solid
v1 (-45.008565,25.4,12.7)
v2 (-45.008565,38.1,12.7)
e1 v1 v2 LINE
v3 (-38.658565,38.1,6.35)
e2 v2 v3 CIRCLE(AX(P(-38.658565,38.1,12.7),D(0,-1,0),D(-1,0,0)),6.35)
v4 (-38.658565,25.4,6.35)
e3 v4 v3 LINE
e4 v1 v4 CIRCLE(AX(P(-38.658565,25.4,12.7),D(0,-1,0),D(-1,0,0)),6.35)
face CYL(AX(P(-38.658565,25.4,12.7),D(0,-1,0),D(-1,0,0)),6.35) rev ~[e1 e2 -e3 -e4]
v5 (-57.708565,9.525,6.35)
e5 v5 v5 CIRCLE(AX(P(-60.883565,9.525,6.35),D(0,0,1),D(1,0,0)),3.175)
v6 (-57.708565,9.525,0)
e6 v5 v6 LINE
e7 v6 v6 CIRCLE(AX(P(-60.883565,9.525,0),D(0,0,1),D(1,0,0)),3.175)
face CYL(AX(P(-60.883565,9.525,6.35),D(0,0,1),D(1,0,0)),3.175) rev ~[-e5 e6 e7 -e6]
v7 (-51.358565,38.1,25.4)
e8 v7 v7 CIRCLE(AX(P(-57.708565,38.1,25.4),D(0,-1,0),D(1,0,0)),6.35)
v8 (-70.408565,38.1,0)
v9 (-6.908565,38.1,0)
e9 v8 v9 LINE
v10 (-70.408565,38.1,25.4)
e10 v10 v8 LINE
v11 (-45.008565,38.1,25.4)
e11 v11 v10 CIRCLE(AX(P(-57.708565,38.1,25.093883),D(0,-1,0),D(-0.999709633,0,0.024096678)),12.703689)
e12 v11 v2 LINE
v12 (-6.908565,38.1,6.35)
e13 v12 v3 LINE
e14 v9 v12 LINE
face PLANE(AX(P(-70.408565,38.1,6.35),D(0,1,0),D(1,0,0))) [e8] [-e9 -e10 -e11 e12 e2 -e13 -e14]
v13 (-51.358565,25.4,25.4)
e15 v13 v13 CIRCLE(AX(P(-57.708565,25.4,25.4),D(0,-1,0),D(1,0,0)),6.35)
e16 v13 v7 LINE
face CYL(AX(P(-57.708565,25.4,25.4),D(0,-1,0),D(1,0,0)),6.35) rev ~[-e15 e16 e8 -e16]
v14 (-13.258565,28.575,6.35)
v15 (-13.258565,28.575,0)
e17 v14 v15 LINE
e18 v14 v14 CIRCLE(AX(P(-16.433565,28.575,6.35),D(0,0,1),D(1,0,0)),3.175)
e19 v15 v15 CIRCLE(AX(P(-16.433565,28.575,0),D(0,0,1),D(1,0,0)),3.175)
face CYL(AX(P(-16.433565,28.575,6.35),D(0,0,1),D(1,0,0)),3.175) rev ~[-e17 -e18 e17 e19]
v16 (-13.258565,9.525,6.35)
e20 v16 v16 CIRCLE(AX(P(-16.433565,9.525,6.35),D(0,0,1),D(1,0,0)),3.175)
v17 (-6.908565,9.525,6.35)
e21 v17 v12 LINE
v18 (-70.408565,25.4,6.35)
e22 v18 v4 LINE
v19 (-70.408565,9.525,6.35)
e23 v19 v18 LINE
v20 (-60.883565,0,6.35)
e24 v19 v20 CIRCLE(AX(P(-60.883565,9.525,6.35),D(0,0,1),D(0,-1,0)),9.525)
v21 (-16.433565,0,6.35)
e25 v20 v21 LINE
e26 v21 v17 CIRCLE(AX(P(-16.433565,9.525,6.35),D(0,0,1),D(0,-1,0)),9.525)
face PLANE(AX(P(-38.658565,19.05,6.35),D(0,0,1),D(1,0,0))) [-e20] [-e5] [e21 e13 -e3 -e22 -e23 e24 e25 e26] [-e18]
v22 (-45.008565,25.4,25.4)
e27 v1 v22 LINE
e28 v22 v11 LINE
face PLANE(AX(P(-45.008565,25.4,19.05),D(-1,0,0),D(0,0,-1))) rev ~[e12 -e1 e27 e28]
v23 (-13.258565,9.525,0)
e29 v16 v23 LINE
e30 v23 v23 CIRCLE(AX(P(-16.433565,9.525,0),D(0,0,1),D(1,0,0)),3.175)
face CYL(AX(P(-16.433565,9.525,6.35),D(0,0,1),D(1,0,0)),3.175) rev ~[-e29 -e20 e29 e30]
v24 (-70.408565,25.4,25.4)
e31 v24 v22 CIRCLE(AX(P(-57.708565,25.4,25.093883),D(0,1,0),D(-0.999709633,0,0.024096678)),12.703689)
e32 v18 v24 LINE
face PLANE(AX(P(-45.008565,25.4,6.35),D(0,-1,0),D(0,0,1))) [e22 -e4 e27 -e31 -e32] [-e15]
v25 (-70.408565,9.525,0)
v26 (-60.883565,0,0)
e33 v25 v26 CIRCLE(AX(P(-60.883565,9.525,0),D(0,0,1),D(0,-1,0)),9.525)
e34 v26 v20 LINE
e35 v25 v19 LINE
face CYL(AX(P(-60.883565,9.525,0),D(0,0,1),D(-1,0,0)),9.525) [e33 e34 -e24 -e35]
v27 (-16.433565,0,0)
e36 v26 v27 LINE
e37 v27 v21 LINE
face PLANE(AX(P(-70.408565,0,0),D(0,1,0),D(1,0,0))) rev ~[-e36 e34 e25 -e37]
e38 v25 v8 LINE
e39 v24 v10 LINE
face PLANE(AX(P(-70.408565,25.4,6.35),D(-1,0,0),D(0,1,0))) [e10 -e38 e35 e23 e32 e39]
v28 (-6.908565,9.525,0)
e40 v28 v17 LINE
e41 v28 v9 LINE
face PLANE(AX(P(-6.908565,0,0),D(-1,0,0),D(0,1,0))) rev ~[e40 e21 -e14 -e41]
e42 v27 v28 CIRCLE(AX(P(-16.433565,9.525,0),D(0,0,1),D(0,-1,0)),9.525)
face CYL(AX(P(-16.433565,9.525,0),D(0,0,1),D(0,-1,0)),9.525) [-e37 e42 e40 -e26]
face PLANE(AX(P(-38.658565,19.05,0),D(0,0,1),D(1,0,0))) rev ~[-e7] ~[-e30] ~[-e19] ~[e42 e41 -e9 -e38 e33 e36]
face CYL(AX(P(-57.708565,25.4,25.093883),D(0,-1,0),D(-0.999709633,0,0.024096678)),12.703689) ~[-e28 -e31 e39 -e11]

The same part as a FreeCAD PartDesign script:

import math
import FreeCAD as App
import Part
import Sketcher

V = App.Vector
Q = App.Units.Quantity


def edges_at(feature, points):
    """Names of the edges that pass closest to the given points."""
    edges = feature.Shape.Edges
    near = lambda p: min(range(len(edges)), key=lambda i: edges[i].distToShape(Part.Vertex(*p))[0])
    return sorted({f"Edge{near(p) + 1}" for p in points})

doc = App.newDocument("Part")
params = doc.addObject("Spreadsheet::Sheet", "Params")
for row, (alias, value) in enumerate([
    ("sketch1_width", "2.5 in"),
    ("sketch1_height", "1.5 in"),
    ("pad1_length", "0.25 in"),
    ("sketch2_diameter", "0.25 in"),
    ("pocket1_length", "1 in"),
    ("sketch3_width", "1 in"),
    ("sketch3_height", "0.5 in"),
    ("pad2_length", "1.25 in"),
    ("sketch4_diameter", "0.5 in"),
    ("sketch4_width", "1 in"),
    ("sketch4_height", "0.5 in"),
    ("pocket2_length", "1 in"),
    ("fillet_radius", "0.375 in"),
    ("sketch5_width", "0.5 in"),
    ("pad3_length", "0.5 in"),
    ("sketch6_radius", "0.25 in"),
    ("sketch6_width", "0.5 in"),
    ("pocket3_length", "1 in"),
], start=1):
    params.set(f"A{row}", alias)
    params.set(f"B{row}", "=" + value)
    params.setAlias(f"B{row}", alias)

body = doc.addObject("PartDesign::Body", "Body")

# Sketch on XY plane
sketch1 = body.newObject("Sketcher::SketchObject", "Sketch")
sketch1.AttachmentSupport = (doc.getObject("XY_Plane"), [""])
sketch1.MapMode = "FlatFace"
sketch1.addGeometry(Part.LineSegment(V(-70, 38, 0), V(-70, 0, 0)), False)
sketch1.addGeometry(Part.LineSegment(V(-70, 0, 0), V(-7, 0, 0)), False)
sketch1.addGeometry(Part.LineSegment(V(-7, 0, 0), V(-7, 38, 0)), False)
sketch1.addGeometry(Part.LineSegment(V(-7, 38, 0), V(-70, 38, 0)), False)
sketch1.addConstraint(Sketcher.Constraint("Coincident", 0, 2, 1, 1))
sketch1.addConstraint(Sketcher.Constraint("Coincident", 1, 2, 2, 1))
sketch1.addConstraint(Sketcher.Constraint("Coincident", 2, 2, 3, 1))
sketch1.addConstraint(Sketcher.Constraint("Coincident", 3, 2, 0, 1))
sketch1.addConstraint(Sketcher.Constraint("Vertical", 0))
sketch1.addConstraint(Sketcher.Constraint("Horizontal", 1))
sketch1.addConstraint(Sketcher.Constraint("Vertical", 2))
sketch1.addConstraint(Sketcher.Constraint("Horizontal", 3))
sketch1.addConstraint(Sketcher.Constraint("PointOnObject", 0, 2, -1))
sketch1.addConstraint(Sketcher.Constraint("DistanceX", 1, 1, 1, 2, Q("2.5 in")))
sketch1.addConstraint(Sketcher.Constraint("DistanceY", 0, 2, 0, 1, Q("1.5 in")))
sketch1.addConstraint(Sketcher.Constraint("DistanceX", 0, 2, -1, 1, Q("70.408565 mm")))
sketch1.setExpression("Constraints[9]", "Params.sketch1_width")
sketch1.setExpression("Constraints[10]", "Params.sketch1_height")
pad1 = body.newObject("PartDesign::Pad", "Pad")
pad1.Profile = sketch1
pad1.setExpression("Length", "Params.pad1_length")

# Sketch on XY plane
sketch2 = body.newObject("Sketcher::SketchObject", "Sketch001")
sketch2.AttachmentSupport = (doc.getObject("XY_Plane"), [""])
sketch2.MapMode = "FlatFace"
sketch2.AttachmentOffset = App.Placement(V(0, 0, 0.25 * 25.4), App.Rotation())
sketch2.addGeometry(Part.Circle(V(-16.4, 28.6, 0), V(0, 0, 1), 3.2), False)
sketch2.addGeometry(Part.Circle(V(-16.4, 9.5, 0), V(0, 0, 1), 3.2), False)
sketch2.addGeometry(Part.Circle(V(-60.9, 9.5, 0), V(0, 0, 1), 3.2), False)
sketch2.addConstraint(Sketcher.Constraint("Equal", 0, 1))
sketch2.addConstraint(Sketcher.Constraint("Equal", 1, 2))
sketch2.addConstraint(Sketcher.Constraint("Horizontal", 1, 3, 2, 3))
sketch2.addConstraint(Sketcher.Constraint("Vertical", 0, 3, 1, 3))
sketch2.addConstraint(Sketcher.Constraint("Diameter", 0, Q("0.25 in")))
sketch2.addConstraint(Sketcher.Constraint("DistanceY", 1, 3, 0, 3, Q("0.75 in")))
sketch2.addConstraint(Sketcher.Constraint("DistanceX", 2, 3, 1, 3, Q("1.75 in")))
sketch2.addConstraint(Sketcher.Constraint("DistanceY", -1, 1, 0, 3, Q("1.125 in")))
sketch2.addConstraint(Sketcher.Constraint("DistanceX", 0, 3, -1, 1, Q("16.433565 mm")))
sketch2.setExpression("Constraints[4]", "Params.sketch2_diameter")
pocket1 = body.newObject("PartDesign::Pocket", "Pocket")
pocket1.Profile = sketch2
pocket1.setExpression("Length", "Params.pocket1_length")

# Sketch on XY plane
sketch3 = body.newObject("Sketcher::SketchObject", "Sketch002")
sketch3.AttachmentSupport = (doc.getObject("XY_Plane"), [""])
sketch3.MapMode = "FlatFace"
sketch3.AttachmentOffset = App.Placement(V(0, 0, 0.25 * 25.4), App.Rotation())
sketch3.addGeometry(Part.LineSegment(V(-70, 38, 0), V(-70, 25, 0)), False)
sketch3.addGeometry(Part.LineSegment(V(-70, 25, 0), V(-45, 25, 0)), False)
sketch3.addGeometry(Part.LineSegment(V(-45, 25, 0), V(-45, 38, 0)), False)
sketch3.addGeometry(Part.LineSegment(V(-45, 38, 0), V(-70, 38, 0)), False)
sketch3.addConstraint(Sketcher.Constraint("Coincident", 0, 2, 1, 1))
sketch3.addConstraint(Sketcher.Constraint("Coincident", 1, 2, 2, 1))
sketch3.addConstraint(Sketcher.Constraint("Coincident", 2, 2, 3, 1))
sketch3.addConstraint(Sketcher.Constraint("Coincident", 3, 2, 0, 1))
sketch3.addConstraint(Sketcher.Constraint("Vertical", 0))
sketch3.addConstraint(Sketcher.Constraint("Horizontal", 1))
sketch3.addConstraint(Sketcher.Constraint("Vertical", 2))
sketch3.addConstraint(Sketcher.Constraint("Horizontal", 3))
sketch3.addConstraint(Sketcher.Constraint("DistanceX", 1, 1, 1, 2, Q("1 in")))
sketch3.addConstraint(Sketcher.Constraint("DistanceY", 0, 2, 0, 1, Q("0.5 in")))
sketch3.addConstraint(Sketcher.Constraint("DistanceY", -1, 1, 0, 2, Q("1 in")))
sketch3.addConstraint(Sketcher.Constraint("DistanceX", 0, 2, -1, 1, Q("70.408565 mm")))
sketch3.setExpression("Constraints[8]", "Params.sketch3_width")
sketch3.setExpression("Constraints[9]", "Params.sketch3_height")
pad2 = body.newObject("PartDesign::Pad", "Pad001")
pad2.Profile = sketch3
pad2.setExpression("Length", "Params.pad2_length")

# Sketch on XZ plane
sketch4 = body.newObject("Sketcher::SketchObject", "Sketch003")
sketch4.AttachmentSupport = (doc.getObject("XZ_Plane"), [""])
sketch4.MapMode = "FlatFace"
sketch4.AttachmentOffset = App.Placement(V(0, 0, -1 * 25.4), App.Rotation())
sketch4.addGeometry(Part.Circle(V(-58, 25, 0), V(0, 0, 1), 6), False)
sketch4.addGeometry(Part.ArcOfCircle(Part.Circle(V(-58, 25, 0), V(0, 0, 1), 13), math.radians(1), math.radians(179)), False)
sketch4.addGeometry(Part.LineSegment(V(-45, 25, 0), V(-45, 38, 0)), False)
sketch4.addGeometry(Part.LineSegment(V(-45, 38, 0), V(-70, 38, 0)), False)
sketch4.addGeometry(Part.LineSegment(V(-70, 38, 0), V(-70, 25, 0)), False)
sketch4.addConstraint(Sketcher.Constraint("Coincident", 1, 1, 2, 1))
sketch4.addConstraint(Sketcher.Constraint("Coincident", 2, 2, 3, 1))
sketch4.addConstraint(Sketcher.Constraint("Coincident", 3, 2, 4, 1))
sketch4.addConstraint(Sketcher.Constraint("Coincident", 4, 2, 1, 2))
sketch4.addConstraint(Sketcher.Constraint("Vertical", 2))
sketch4.addConstraint(Sketcher.Constraint("Horizontal", 3))
sketch4.addConstraint(Sketcher.Constraint("Vertical", 4))
sketch4.addConstraint(Sketcher.Constraint("Horizontal", 0, 3, 1, 1))
sketch4.addConstraint(Sketcher.Constraint("Horizontal", 1, 1, 4, 2))
sketch4.addConstraint(Sketcher.Constraint("Vertical", 0, 3, 1, 3))
sketch4.addConstraint(Sketcher.Constraint("Diameter", 0, Q("0.5 in")))
sketch4.addConstraint(Sketcher.Constraint("DistanceX", 3, 2, 3, 1, Q("1 in")))
sketch4.addConstraint(Sketcher.Constraint("DistanceY", 2, 1, 2, 2, Q("0.5 in")))
sketch4.addConstraint(Sketcher.Constraint("DistanceY", -1, 1, 0, 3, Q("1 in")))
sketch4.addConstraint(Sketcher.Constraint("Radius", 1, Q("12.703689 mm")))
sketch4.addConstraint(Sketcher.Constraint("DistanceX", 0, 3, -1, 1, Q("57.708565 mm")))
sketch4.setExpression("Constraints[10]", "Params.sketch4_diameter")
sketch4.setExpression("Constraints[11]", "Params.sketch4_width")
sketch4.setExpression("Constraints[12]", "Params.sketch4_height")
pocket2 = body.newObject("PartDesign::Pocket", "Pocket001")
pocket2.Profile = sketch4
pocket2.setExpression("Length", "Params.pocket2_length")
doc.recompute()

fillet = body.newObject("PartDesign::Fillet", "Fillet")
fillet.Base = (pocket2, edges_at(pocket2, [(-6.909, 0, 3.175), (-70.409, 0, 3.175)]))
fillet.setExpression("Radius", "Params.fillet_radius")

# Sketch on YZ plane
sketch5 = body.newObject("Sketcher::SketchObject", "Sketch004")
sketch5.AttachmentSupport = (doc.getObject("YZ_Plane"), [""])
sketch5.MapMode = "FlatFace"
sketch5.AttachmentOffset = App.Placement(V(0, 0, -45.008565), App.Rotation())
sketch5.addGeometry(Part.LineSegment(V(25, 19, 0), V(25, 6, 0)), False)
sketch5.addGeometry(Part.LineSegment(V(25, 6, 0), V(38, 6, 0)), False)
sketch5.addGeometry(Part.LineSegment(V(38, 6, 0), V(38, 19, 0)), False)
sketch5.addGeometry(Part.LineSegment(V(38, 19, 0), V(25, 19, 0)), False)
sketch5.addConstraint(Sketcher.Constraint("Coincident", 0, 2, 1, 1))
sketch5.addConstraint(Sketcher.Constraint("Coincident", 1, 2, 2, 1))
sketch5.addConstraint(Sketcher.Constraint("Coincident", 2, 2, 3, 1))
sketch5.addConstraint(Sketcher.Constraint("Coincident", 3, 2, 0, 1))
sketch5.addConstraint(Sketcher.Constraint("Vertical", 0))
sketch5.addConstraint(Sketcher.Constraint("Horizontal", 1))
sketch5.addConstraint(Sketcher.Constraint("Vertical", 2))
sketch5.addConstraint(Sketcher.Constraint("Horizontal", 3))
sketch5.addConstraint(Sketcher.Constraint("Equal", 3, 0))
sketch5.addConstraint(Sketcher.Constraint("DistanceX", 1, 1, 1, 2, Q("0.5 in")))
sketch5.addConstraint(Sketcher.Constraint("DistanceX", -1, 1, 0, 2, Q("1 in")))
sketch5.addConstraint(Sketcher.Constraint("DistanceY", -1, 1, 0, 2, Q("0.25 in")))
sketch5.setExpression("Constraints[9]", "Params.sketch5_width")
pad3 = body.newObject("PartDesign::Pad", "Pad002")
pad3.Profile = sketch5
pad3.setExpression("Length", "Params.pad3_length")

# Sketch on XZ plane
sketch6 = body.newObject("Sketcher::SketchObject", "Sketch005")
sketch6.AttachmentSupport = (doc.getObject("XZ_Plane"), [""])
sketch6.MapMode = "FlatFace"
sketch6.AttachmentOffset = App.Placement(V(0, 0, -1 * 25.4), App.Rotation())
sketch6.addGeometry(Part.LineSegment(V(-32, 19, 0), V(-45, 19, 0)), False)
sketch6.addGeometry(Part.LineSegment(V(-45, 19, 0), V(-45, 13, 0)), False)
sketch6.addGeometry(Part.ArcOfCircle(Part.Circle(V(-39, 13, 0), V(0, 0, 1), 6), math.radians(180), math.radians(270)), False)
sketch6.addGeometry(Part.LineSegment(V(-39, 6, 0), V(-32, 6, 0)), False)
sketch6.addGeometry(Part.LineSegment(V(-32, 6, 0), V(-32, 19, 0)), False)
sketch6.addConstraint(Sketcher.Constraint("Coincident", 0, 2, 1, 1))
sketch6.addConstraint(Sketcher.Constraint("Tangent", 1, 2, 2, 1))
sketch6.addConstraint(Sketcher.Constraint("Tangent", 2, 2, 3, 1))
sketch6.addConstraint(Sketcher.Constraint("Coincident", 3, 2, 4, 1))
sketch6.addConstraint(Sketcher.Constraint("Coincident", 4, 2, 0, 1))
sketch6.addConstraint(Sketcher.Constraint("Horizontal", 0))
sketch6.addConstraint(Sketcher.Constraint("Vertical", 1))
sketch6.addConstraint(Sketcher.Constraint("Horizontal", 3))
sketch6.addConstraint(Sketcher.Constraint("Vertical", 4))
sketch6.addConstraint(Sketcher.Constraint("Equal", 3, 1))
sketch6.addConstraint(Sketcher.Constraint("Radius", 2, Q("0.25 in")))
sketch6.addConstraint(Sketcher.Constraint("DistanceX", 0, 2, 0, 1, Q("0.5 in")))
sketch6.addConstraint(Sketcher.Constraint("DistanceY", -1, 1, 2, 3, Q("0.5 in")))
sketch6.addConstraint(Sketcher.Constraint("DistanceX", 2, 3, -1, 1, Q("38.658565 mm")))
sketch6.setExpression("Constraints[10]", "Params.sketch6_radius")
sketch6.setExpression("Constraints[11]", "Params.sketch6_width")
pocket3 = body.newObject("PartDesign::Pocket", "Pocket002")
pocket3.Profile = sketch6
pocket3.setExpression("Length", "Params.pocket3_length")

doc.recompute()
